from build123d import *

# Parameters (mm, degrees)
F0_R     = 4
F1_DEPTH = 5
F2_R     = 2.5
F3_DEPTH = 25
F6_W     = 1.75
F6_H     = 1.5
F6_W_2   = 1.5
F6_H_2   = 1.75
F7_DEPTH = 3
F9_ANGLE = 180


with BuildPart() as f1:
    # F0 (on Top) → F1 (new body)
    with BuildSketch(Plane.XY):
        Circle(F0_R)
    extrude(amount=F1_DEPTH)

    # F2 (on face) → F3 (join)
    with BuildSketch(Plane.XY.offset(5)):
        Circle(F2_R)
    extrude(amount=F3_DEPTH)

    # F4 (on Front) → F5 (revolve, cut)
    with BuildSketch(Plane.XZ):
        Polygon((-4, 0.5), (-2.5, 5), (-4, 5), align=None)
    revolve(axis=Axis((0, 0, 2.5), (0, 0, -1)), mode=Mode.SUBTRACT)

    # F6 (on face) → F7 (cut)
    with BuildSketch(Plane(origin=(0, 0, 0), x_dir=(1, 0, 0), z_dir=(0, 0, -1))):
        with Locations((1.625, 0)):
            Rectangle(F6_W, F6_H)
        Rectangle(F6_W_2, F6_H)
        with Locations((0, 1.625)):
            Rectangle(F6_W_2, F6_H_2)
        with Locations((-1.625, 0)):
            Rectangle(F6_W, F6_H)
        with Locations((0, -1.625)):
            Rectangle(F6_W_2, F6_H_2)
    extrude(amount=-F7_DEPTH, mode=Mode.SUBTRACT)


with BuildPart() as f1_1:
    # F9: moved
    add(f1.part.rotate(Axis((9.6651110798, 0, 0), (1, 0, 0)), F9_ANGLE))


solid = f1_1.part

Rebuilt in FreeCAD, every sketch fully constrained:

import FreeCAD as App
import Part
import Sketcher


def add_polygon(sketch, points):
    """Adds a closed chain of lines whose ends are joined by coincident constraints."""
    first, n = sketch.GeometryCount, len(points)
    for a, b in zip(points, points[1:] + points[:1]):
        sketch.addGeometry(Part.LineSegment(App.Vector(*a, 0), App.Vector(*b, 0)), False)
    for i in range(n):
        sketch.addConstraint(Sketcher.Constraint("Coincident", first + i, 2, first + (i + 1) % n, 1))

doc = App.newDocument("Part")
params = doc.addObject("Spreadsheet::Sheet", "Params")
for row, (alias, value) in enumerate([
    ("sketch1_diameter", "8 mm"),
    ("pad1_length", "5 mm"),
    ("sketch2_diameter", "5 mm"),
    ("pad2_length", "25 mm"),
    ("sketch3_width", "1.5 mm"),
    ("sketch3_height", "4.5 mm"),
    ("groove_angle", "360 deg"),
    ("sketch4_width", "1.5 mm"),
    ("pocket1_length", "3 mm"),
], start=1):
    params.set(f"A{row}", alias)
    params.set(f"B{row}", "=" + value)
    params.setAlias(f"B{row}", alias)

body = doc.addObject("PartDesign::Body", "Body")

sketch1 = body.newObject("Sketcher::SketchObject", "Sketch")
sketch1.AttachmentSupport = (doc.getObject("XY_Plane"), [""])
sketch1.MapMode = "FlatFace"
sketch1.addGeometry(Part.Circle(App.Vector(0, 0, 0), App.Vector(0, 0, 1), 4), False)
sketch1.addConstraint([
    Sketcher.Constraint("Coincident", 0, 3, -1, 1),
    Sketcher.Constraint("Diameter", 0, 8.0),
])
sketch1.setExpression("Constraints[1]", "Params.sketch1_diameter")
pad1 = body.newObject("PartDesign::Pad", "Pad")
pad1.Profile = sketch1
pad1.setExpression("Length", "Params.pad1_length")

sketch2 = body.newObject("Sketcher::SketchObject", "Sketch001")
sketch2.AttachmentSupport = (doc.getObject("XY_Plane"), [""])
sketch2.MapMode = "FlatFace"
sketch2.AttachmentOffset = App.Placement(App.Vector(0, 0, 5), App.Rotation())
sketch2.addGeometry(Part.Circle(App.Vector(0, 0, 0), App.Vector(0, 0, 1), 2.5), False)
sketch2.addConstraint([
    Sketcher.Constraint("Coincident", 0, 3, -1, 1),
    Sketcher.Constraint("Diameter", 0, 5.0),
])
sketch2.setExpression("Constraints[1]", "Params.sketch2_diameter")
pad2 = body.newObject("PartDesign::Pad", "Pad001")
pad2.Profile = sketch2
pad2.setExpression("Length", "Params.pad2_length")

sketch3 = body.newObject("Sketcher::SketchObject", "Sketch002")
sketch3.AttachmentSupport = (doc.getObject("XZ_Plane"), [""])
sketch3.MapMode = "FlatFace"
add_polygon(sketch3, [(-4, 0.5), (-2.5, 5), (-4, 5)])
sketch3.addConstraint([
    Sketcher.Constraint("Horizontal", 1),
    Sketcher.Constraint("Vertical", 2),
    Sketcher.Constraint("DistanceX", 1, 2, 1, 1, 1.5),
    Sketcher.Constraint("DistanceY", 2, 2, 2, 1, 4.5),
    Sketcher.Constraint("DistanceY", -1, 1, 0, 2, 5.0),
    Sketcher.Constraint("DistanceX", 1, 2, -1, 1, 4.0),
])
sketch3.setExpression("Constraints[5]", "Params.sketch3_width")
sketch3.setExpression("Constraints[6]", "Params.sketch3_height")
groove = body.newObject("PartDesign::Groove", "Groove")
groove.Profile = sketch3
groove.ReferenceAxis = (sketch3, ["V_Axis"])
groove.setExpression("Angle", "Params.groove_angle")

sketch4 = body.newObject("Sketcher::SketchObject", "Sketch003")
sketch4.AttachmentSupport = (doc.getObject("XY_Plane"), [""])
sketch4.MapMode = "FlatFace"
add_polygon(sketch4, [(2.5, 0.8), (2.5, -0.8), (0.8, -0.8), (0.8, -2.5), (-0.8, -2.5), (-0.8, -0.8), (-2.5, -0.8), (-2.5, 0.8), (-0.8, 0.8), (-0.8, 2.5), (0.8, 2.5), (0.8, 0.8)])
sketch4.addConstraint([
    Sketcher.Constraint("Vertical", 0),
    Sketcher.Constraint("Horizontal", 1),
    Sketcher.Constraint("Vertical", 2),
    Sketcher.Constraint("Horizontal", 3),
    Sketcher.Constraint("Vertical", 4),
    Sketcher.Constraint("Horizontal", 5),
    Sketcher.Constraint("Vertical", 6),
    Sketcher.Constraint("Horizontal", 7),
    Sketcher.Constraint("Vertical", 8),
    Sketcher.Constraint("Horizontal", 9),
    Sketcher.Constraint("Vertical", 10),
    Sketcher.Constraint("Horizontal", 11),
    Sketcher.Constraint("Symmetric", 0, 2, 6, 2, -1, 1),
    Sketcher.Constraint("Symmetric", 2, 2, 8, 2, -1, 1),
    Sketcher.Constraint("Symmetric", 4, 2, 10, 2, -1, 1),
    Sketcher.Constraint("Symmetric", 1, 2, 4, 2, -2),
    Sketcher.Constraint("Equal", 9, 0),
    Sketcher.Constraint("Equal", 11, 2),
    Sketcher.Constraint("DistanceX", 3, 2, 3, 1, 1.5),
    Sketcher.Constraint("DistanceX", 5, 2, 0, 2, 5.0),
])
sketch4.setExpression("Constraints[30]", "Params.sketch4_width")
pocket1 = body.newObject("PartDesign::Pocket", "Pocket")
pocket1.Profile = sketch4
pocket1.setExpression("Length", "Params.pocket1_length")
pocket1.Reversed = True
body2 = doc.addObject("PartDesign::Body", "Body001")
doc.recompute()

body.Placement = App.Placement(App.Vector(0, 0, 0), App.Rotation(App.Vector(1, 0, 0), 180))
boolean = body2.newObject("PartDesign::Boolean", "Boolean")
boolean.Type = "Fuse"
boolean.addObjects([body])

doc.recompute()
